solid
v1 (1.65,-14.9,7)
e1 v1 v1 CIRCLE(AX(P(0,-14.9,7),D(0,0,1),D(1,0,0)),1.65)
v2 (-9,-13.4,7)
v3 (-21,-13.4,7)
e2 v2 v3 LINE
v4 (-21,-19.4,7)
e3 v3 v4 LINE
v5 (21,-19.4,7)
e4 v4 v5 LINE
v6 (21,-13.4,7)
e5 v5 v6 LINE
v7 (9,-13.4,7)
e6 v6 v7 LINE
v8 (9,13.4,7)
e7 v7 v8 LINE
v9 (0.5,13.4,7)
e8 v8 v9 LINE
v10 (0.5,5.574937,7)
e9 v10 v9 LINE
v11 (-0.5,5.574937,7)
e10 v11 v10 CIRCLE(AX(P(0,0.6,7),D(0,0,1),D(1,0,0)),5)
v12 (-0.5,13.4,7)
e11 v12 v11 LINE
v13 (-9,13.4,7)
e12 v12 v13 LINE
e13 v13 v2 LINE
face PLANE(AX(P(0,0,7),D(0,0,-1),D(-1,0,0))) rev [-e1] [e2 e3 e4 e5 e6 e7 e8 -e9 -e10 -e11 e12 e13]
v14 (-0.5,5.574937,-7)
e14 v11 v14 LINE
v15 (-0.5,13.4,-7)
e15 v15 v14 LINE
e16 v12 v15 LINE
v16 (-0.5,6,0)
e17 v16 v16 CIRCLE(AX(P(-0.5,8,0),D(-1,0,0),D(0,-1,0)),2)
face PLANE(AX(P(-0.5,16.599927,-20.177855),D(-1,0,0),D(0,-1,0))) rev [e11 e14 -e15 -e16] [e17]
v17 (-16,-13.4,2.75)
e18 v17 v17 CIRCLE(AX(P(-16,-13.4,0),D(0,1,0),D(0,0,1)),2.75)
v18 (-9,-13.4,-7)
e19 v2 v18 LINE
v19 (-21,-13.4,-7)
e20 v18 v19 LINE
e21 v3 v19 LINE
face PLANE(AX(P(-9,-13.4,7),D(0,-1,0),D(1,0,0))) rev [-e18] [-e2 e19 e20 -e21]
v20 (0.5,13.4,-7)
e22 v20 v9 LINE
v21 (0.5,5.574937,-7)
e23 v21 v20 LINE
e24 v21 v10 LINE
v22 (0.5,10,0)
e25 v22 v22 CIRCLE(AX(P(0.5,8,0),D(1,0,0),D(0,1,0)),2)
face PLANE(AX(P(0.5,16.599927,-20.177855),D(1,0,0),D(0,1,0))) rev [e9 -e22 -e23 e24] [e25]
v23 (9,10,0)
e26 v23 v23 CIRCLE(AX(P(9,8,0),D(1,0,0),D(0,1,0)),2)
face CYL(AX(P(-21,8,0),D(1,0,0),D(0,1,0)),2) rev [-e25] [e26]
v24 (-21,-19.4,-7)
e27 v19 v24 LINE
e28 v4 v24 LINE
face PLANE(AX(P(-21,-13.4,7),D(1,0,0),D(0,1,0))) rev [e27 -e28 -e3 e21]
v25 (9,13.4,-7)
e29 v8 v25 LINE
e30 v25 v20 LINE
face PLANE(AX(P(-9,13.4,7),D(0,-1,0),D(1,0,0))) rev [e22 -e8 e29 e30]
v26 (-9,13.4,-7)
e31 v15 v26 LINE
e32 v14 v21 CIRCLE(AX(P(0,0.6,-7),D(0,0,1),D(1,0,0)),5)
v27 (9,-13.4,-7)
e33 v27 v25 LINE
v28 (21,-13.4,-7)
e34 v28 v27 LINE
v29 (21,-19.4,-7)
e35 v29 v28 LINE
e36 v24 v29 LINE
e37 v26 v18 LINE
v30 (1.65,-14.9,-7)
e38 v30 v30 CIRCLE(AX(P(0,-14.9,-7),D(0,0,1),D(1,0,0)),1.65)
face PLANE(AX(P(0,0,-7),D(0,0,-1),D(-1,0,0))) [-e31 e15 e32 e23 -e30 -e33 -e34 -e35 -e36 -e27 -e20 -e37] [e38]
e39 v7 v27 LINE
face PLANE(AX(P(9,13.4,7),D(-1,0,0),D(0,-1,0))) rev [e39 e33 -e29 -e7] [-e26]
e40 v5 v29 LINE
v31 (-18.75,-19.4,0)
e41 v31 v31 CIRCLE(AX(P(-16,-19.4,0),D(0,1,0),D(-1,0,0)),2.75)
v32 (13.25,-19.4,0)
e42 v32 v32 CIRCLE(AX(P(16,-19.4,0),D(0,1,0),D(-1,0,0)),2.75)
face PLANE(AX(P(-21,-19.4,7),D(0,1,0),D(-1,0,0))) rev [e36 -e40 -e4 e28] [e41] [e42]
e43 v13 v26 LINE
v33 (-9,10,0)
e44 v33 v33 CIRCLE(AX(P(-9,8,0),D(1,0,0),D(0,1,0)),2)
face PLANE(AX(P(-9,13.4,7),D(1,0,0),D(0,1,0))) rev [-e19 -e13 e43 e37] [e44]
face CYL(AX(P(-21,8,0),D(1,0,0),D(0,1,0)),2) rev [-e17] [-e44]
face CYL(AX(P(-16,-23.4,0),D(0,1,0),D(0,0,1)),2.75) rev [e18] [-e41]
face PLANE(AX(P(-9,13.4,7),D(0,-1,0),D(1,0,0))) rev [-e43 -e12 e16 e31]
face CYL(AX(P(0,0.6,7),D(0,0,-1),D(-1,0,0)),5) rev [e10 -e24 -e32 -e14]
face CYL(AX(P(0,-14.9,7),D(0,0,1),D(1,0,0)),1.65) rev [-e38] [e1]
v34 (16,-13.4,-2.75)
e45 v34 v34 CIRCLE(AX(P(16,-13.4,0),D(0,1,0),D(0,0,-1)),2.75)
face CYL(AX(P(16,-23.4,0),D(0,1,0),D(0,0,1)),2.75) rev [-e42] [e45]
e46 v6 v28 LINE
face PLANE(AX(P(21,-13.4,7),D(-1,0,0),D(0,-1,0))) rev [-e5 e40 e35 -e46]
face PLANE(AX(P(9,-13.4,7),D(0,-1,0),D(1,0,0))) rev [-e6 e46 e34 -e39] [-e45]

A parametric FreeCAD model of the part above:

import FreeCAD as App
import Part
import Sketcher

doc = App.newDocument("Part")
body = doc.addObject("PartDesign::Body", "Body")

# Sketch on XY plane
sketch1 = body.newObject("Sketcher::SketchObject", "Sketch")
sketch1.AttachmentSupport = (doc.getObject("XY_Plane"), [""])
sketch1.MapMode = "FlatFace"
sketch1.addGeometry([
    Part.LineSegment(App.Vector(-9, -13.4, 0), App.Vector(-21, -13.4, 0)),  # 0
    Part.LineSegment(App.Vector(-21, -13.4, 0), App.Vector(-21, -19.4, 0)),  # 1
    Part.LineSegment(App.Vector(-21, -19.4, 0), App.Vector(21, -19.4, 0)),  # 2
    Part.LineSegment(App.Vector(21, -19.4, 0), App.Vector(21, -13.4, 0)),  # 3
    Part.LineSegment(App.Vector(21, -13.4, 0), App.Vector(9, -13.4, 0)),  # 4
    Part.LineSegment(App.Vector(9, -13.4, 0), App.Vector(9, 13.4, 0)),  # 5
    Part.LineSegment(App.Vector(9, 13.4, 0), App.Vector(-9, 13.4, 0)),  # 6
    Part.LineSegment(App.Vector(-9, 13.4, 0), App.Vector(-9, -13.4, 0)),  # 7
    Part.Circle(App.Vector(0, 0.6, 0), App.Vector(0, 0, 1), 5),  # 8
], False)
sketch1.addConstraint([
    Sketcher.Constraint("Coincident", 0, 2, 1, 1),
    Sketcher.Constraint("Coincident", 1, 2, 2, 1),
    Sketcher.Constraint("Coincident", 2, 2, 3, 1),
    Sketcher.Constraint("Coincident", 3, 2, 4, 1),
    Sketcher.Constraint("Coincident", 4, 2, 5, 1),
    Sketcher.Constraint("Coincident", 5, 2, 6, 1),
    Sketcher.Constraint("Coincident", 6, 2, 7, 1),
    Sketcher.Constraint("Coincident", 7, 2, 0, 1),
    Sketcher.Constraint("Horizontal", 0),
    Sketcher.Constraint("Vertical", 1),
    Sketcher.Constraint("Horizontal", 2),
    Sketcher.Constraint("Vertical", 3),
    Sketcher.Constraint("Horizontal", 4),
    Sketcher.Constraint("Vertical", 5),
    Sketcher.Constraint("Horizontal", 6),
    Sketcher.Constraint("Vertical", 7),
    Sketcher.Constraint("Symmetric", 4, 2, 6, 2, -1, 1),
    Sketcher.Constraint("Symmetric", 0, 2, 3, 2, -2),
    Sketcher.Constraint("PointOnObject", 8, 3, -2),
    Sketcher.Constraint("Diameter", 8, 10.0),
    Sketcher.Constraint("DistanceX", 0, 2, 0, 1, 12.0),
    Sketcher.Constraint("DistanceX", 2, 1, 2, 2, 42.0),
    Sketcher.Constraint("DistanceY", 1, 2, 1, 1, 6.0),
    Sketcher.Constraint("DistanceY", 5, 1, 5, 2, 26.8),
    Sketcher.Constraint("DistanceY", 0, 2, 8, 3, 14.0),
])
pad1 = body.newObject("PartDesign::Pad", "Pad")
pad1.Profile = sketch1
pad1.Length = 14
pad1.Midplane = True

# Sketch on XZ plane
sketch2 = body.newObject("Sketcher::SketchObject", "Sketch001")
sketch2.AttachmentSupport = (doc.getObject("XZ_Plane"), [""])
sketch2.MapMode = "FlatFace"
sketch2.AttachmentOffset = App.Placement(App.Vector(0, 0, 13.4), App.Rotation())
sketch2.addGeometry([
    Part.Circle(App.Vector(-16, 0, 0), App.Vector(0, 0, 1), 2.75),
    Part.Circle(App.Vector(16, 0, 0), App.Vector(0, 0, 1), 2.75),
], False)
sketch2.addConstraint([
    Sketcher.Constraint("Equal", 0, 1),
    Sketcher.Constraint("Symmetric", 0, 3, 1, 3, -1, 1),
    Sketcher.Constraint("PointOnObject", 0, 3, -1),
    Sketcher.Constraint("Diameter", 0, 5.5),
    Sketcher.Constraint("DistanceX", 0, 3, -1, 1, 16.0),
])
pocket1 = body.newObject("PartDesign::Pocket", "Pocket")
pocket1.Profile = sketch2
pocket1.Length = 10
pocket1.Reversed = True

# Sketch on XY plane
sketch3 = body.newObject("Sketcher::SketchObject", "Sketch002")
sketch3.AttachmentSupport = (doc.getObject("XY_Plane"), [""])
sketch3.MapMode = "FlatFace"
sketch3.AttachmentOffset = App.Placement(App.Vector(0, 0, 7), App.Rotation())
sketch3.addGeometry([
    Part.LineSegment(App.Vector(-0.5, 16.599927, 0), App.Vector(-0.5, 3.46007, 0)),
    Part.LineSegment(App.Vector(-0.5, 3.46007, 0), App.Vector(0.5, 3.46007, 0)),
    Part.LineSegment(App.Vector(0.5, 3.46007, 0), App.Vector(0.5, 16.599927, 0)),
    Part.LineSegment(App.Vector(0.5, 16.599927, 0), App.Vector(-0.5, 16.599927, 0)),
], False)
sketch3.addConstraint([
    Sketcher.Constraint("Coincident", 0, 2, 1, 1),
    Sketcher.Constraint("Coincident", 1, 2, 2, 1),
    Sketcher.Constraint("Coincident", 2, 2, 3, 1),
    Sketcher.Constraint("Coincident", 3, 2, 0, 1),
    Sketcher.Constraint("Vertical", 0),
    Sketcher.Constraint("Horizontal", 1),
    Sketcher.Constraint("Vertical", 2),
    Sketcher.Constraint("Horizontal", 3),
    Sketcher.Constraint("DistanceX", 1, 1, 1, 2, 1.0),
    Sketcher.Constraint("DistanceX", 0, 2, -1, 1, 0.5),
    Sketcher.Constraint("DistanceY", 0, 2, 0, 1, 13.139858),
    Sketcher.Constraint("DistanceY", -1, 1, 0, 2, 3.46007),
])
pocket2 = body.newObject("PartDesign::Pocket", "Pocket001")
pocket2.Profile = sketch3
pocket2.Length = 14

# Sketch on YZ plane
sketch4 = body.newObject("Sketcher::SketchObject", "Sketch003")
sketch4.AttachmentSupport = (doc.getObject("YZ_Plane"), [""])
sketch4.MapMode = "FlatFace"
sketch4.AttachmentOffset = App.Placement(App.Vector(0, 0, 9), App.Rotation())
sketch4.addGeometry(Part.Circle(App.Vector(8, 0, 0), App.Vector(0, 0, 1), 2), False)
sketch4.addConstraint([
    Sketcher.Constraint("PointOnObject", 0, 3, -1),
    Sketcher.Constraint("Diameter", 0, 4.0),
    Sketcher.Constraint("DistanceX", -1, 1, 0, 3, 8.0),
])
pocket3 = body.newObject("PartDesign::Pocket", "Pocket002")
pocket3.Profile = sketch4
pocket3.Type = "ThroughAll"

# Sketch on XY plane
sketch5 = body.newObject("Sketcher::SketchObject", "Sketch004")
sketch5.AttachmentSupport = (doc.getObject("XY_Plane"), [""])
sketch5.MapMode = "FlatFace"
sketch5.AttachmentOffset = App.Placement(App.Vector(0, 0, 7), App.Rotation())
sketch5.addGeometry(Part.Circle(App.Vector(0, -14.9, 0), App.Vector(0, 0, 1), 1.65), False)
sketch5.addConstraint([
    Sketcher.Constraint("PointOnObject", 0, 3, -2),
    Sketcher.Constraint("Diameter", 0, 3.3),
    Sketcher.Constraint("DistanceY", 0, 3, -1, 1, 14.9),
])
doc.recompute()
hole = body.newObject("PartDesign::Hole", "Hole")
hole.Profile = sketch5
hole.ThreadType = "None"
hole.Diameter = 3.3
hole.DepthType = "ThroughAll"

doc.recompute()
